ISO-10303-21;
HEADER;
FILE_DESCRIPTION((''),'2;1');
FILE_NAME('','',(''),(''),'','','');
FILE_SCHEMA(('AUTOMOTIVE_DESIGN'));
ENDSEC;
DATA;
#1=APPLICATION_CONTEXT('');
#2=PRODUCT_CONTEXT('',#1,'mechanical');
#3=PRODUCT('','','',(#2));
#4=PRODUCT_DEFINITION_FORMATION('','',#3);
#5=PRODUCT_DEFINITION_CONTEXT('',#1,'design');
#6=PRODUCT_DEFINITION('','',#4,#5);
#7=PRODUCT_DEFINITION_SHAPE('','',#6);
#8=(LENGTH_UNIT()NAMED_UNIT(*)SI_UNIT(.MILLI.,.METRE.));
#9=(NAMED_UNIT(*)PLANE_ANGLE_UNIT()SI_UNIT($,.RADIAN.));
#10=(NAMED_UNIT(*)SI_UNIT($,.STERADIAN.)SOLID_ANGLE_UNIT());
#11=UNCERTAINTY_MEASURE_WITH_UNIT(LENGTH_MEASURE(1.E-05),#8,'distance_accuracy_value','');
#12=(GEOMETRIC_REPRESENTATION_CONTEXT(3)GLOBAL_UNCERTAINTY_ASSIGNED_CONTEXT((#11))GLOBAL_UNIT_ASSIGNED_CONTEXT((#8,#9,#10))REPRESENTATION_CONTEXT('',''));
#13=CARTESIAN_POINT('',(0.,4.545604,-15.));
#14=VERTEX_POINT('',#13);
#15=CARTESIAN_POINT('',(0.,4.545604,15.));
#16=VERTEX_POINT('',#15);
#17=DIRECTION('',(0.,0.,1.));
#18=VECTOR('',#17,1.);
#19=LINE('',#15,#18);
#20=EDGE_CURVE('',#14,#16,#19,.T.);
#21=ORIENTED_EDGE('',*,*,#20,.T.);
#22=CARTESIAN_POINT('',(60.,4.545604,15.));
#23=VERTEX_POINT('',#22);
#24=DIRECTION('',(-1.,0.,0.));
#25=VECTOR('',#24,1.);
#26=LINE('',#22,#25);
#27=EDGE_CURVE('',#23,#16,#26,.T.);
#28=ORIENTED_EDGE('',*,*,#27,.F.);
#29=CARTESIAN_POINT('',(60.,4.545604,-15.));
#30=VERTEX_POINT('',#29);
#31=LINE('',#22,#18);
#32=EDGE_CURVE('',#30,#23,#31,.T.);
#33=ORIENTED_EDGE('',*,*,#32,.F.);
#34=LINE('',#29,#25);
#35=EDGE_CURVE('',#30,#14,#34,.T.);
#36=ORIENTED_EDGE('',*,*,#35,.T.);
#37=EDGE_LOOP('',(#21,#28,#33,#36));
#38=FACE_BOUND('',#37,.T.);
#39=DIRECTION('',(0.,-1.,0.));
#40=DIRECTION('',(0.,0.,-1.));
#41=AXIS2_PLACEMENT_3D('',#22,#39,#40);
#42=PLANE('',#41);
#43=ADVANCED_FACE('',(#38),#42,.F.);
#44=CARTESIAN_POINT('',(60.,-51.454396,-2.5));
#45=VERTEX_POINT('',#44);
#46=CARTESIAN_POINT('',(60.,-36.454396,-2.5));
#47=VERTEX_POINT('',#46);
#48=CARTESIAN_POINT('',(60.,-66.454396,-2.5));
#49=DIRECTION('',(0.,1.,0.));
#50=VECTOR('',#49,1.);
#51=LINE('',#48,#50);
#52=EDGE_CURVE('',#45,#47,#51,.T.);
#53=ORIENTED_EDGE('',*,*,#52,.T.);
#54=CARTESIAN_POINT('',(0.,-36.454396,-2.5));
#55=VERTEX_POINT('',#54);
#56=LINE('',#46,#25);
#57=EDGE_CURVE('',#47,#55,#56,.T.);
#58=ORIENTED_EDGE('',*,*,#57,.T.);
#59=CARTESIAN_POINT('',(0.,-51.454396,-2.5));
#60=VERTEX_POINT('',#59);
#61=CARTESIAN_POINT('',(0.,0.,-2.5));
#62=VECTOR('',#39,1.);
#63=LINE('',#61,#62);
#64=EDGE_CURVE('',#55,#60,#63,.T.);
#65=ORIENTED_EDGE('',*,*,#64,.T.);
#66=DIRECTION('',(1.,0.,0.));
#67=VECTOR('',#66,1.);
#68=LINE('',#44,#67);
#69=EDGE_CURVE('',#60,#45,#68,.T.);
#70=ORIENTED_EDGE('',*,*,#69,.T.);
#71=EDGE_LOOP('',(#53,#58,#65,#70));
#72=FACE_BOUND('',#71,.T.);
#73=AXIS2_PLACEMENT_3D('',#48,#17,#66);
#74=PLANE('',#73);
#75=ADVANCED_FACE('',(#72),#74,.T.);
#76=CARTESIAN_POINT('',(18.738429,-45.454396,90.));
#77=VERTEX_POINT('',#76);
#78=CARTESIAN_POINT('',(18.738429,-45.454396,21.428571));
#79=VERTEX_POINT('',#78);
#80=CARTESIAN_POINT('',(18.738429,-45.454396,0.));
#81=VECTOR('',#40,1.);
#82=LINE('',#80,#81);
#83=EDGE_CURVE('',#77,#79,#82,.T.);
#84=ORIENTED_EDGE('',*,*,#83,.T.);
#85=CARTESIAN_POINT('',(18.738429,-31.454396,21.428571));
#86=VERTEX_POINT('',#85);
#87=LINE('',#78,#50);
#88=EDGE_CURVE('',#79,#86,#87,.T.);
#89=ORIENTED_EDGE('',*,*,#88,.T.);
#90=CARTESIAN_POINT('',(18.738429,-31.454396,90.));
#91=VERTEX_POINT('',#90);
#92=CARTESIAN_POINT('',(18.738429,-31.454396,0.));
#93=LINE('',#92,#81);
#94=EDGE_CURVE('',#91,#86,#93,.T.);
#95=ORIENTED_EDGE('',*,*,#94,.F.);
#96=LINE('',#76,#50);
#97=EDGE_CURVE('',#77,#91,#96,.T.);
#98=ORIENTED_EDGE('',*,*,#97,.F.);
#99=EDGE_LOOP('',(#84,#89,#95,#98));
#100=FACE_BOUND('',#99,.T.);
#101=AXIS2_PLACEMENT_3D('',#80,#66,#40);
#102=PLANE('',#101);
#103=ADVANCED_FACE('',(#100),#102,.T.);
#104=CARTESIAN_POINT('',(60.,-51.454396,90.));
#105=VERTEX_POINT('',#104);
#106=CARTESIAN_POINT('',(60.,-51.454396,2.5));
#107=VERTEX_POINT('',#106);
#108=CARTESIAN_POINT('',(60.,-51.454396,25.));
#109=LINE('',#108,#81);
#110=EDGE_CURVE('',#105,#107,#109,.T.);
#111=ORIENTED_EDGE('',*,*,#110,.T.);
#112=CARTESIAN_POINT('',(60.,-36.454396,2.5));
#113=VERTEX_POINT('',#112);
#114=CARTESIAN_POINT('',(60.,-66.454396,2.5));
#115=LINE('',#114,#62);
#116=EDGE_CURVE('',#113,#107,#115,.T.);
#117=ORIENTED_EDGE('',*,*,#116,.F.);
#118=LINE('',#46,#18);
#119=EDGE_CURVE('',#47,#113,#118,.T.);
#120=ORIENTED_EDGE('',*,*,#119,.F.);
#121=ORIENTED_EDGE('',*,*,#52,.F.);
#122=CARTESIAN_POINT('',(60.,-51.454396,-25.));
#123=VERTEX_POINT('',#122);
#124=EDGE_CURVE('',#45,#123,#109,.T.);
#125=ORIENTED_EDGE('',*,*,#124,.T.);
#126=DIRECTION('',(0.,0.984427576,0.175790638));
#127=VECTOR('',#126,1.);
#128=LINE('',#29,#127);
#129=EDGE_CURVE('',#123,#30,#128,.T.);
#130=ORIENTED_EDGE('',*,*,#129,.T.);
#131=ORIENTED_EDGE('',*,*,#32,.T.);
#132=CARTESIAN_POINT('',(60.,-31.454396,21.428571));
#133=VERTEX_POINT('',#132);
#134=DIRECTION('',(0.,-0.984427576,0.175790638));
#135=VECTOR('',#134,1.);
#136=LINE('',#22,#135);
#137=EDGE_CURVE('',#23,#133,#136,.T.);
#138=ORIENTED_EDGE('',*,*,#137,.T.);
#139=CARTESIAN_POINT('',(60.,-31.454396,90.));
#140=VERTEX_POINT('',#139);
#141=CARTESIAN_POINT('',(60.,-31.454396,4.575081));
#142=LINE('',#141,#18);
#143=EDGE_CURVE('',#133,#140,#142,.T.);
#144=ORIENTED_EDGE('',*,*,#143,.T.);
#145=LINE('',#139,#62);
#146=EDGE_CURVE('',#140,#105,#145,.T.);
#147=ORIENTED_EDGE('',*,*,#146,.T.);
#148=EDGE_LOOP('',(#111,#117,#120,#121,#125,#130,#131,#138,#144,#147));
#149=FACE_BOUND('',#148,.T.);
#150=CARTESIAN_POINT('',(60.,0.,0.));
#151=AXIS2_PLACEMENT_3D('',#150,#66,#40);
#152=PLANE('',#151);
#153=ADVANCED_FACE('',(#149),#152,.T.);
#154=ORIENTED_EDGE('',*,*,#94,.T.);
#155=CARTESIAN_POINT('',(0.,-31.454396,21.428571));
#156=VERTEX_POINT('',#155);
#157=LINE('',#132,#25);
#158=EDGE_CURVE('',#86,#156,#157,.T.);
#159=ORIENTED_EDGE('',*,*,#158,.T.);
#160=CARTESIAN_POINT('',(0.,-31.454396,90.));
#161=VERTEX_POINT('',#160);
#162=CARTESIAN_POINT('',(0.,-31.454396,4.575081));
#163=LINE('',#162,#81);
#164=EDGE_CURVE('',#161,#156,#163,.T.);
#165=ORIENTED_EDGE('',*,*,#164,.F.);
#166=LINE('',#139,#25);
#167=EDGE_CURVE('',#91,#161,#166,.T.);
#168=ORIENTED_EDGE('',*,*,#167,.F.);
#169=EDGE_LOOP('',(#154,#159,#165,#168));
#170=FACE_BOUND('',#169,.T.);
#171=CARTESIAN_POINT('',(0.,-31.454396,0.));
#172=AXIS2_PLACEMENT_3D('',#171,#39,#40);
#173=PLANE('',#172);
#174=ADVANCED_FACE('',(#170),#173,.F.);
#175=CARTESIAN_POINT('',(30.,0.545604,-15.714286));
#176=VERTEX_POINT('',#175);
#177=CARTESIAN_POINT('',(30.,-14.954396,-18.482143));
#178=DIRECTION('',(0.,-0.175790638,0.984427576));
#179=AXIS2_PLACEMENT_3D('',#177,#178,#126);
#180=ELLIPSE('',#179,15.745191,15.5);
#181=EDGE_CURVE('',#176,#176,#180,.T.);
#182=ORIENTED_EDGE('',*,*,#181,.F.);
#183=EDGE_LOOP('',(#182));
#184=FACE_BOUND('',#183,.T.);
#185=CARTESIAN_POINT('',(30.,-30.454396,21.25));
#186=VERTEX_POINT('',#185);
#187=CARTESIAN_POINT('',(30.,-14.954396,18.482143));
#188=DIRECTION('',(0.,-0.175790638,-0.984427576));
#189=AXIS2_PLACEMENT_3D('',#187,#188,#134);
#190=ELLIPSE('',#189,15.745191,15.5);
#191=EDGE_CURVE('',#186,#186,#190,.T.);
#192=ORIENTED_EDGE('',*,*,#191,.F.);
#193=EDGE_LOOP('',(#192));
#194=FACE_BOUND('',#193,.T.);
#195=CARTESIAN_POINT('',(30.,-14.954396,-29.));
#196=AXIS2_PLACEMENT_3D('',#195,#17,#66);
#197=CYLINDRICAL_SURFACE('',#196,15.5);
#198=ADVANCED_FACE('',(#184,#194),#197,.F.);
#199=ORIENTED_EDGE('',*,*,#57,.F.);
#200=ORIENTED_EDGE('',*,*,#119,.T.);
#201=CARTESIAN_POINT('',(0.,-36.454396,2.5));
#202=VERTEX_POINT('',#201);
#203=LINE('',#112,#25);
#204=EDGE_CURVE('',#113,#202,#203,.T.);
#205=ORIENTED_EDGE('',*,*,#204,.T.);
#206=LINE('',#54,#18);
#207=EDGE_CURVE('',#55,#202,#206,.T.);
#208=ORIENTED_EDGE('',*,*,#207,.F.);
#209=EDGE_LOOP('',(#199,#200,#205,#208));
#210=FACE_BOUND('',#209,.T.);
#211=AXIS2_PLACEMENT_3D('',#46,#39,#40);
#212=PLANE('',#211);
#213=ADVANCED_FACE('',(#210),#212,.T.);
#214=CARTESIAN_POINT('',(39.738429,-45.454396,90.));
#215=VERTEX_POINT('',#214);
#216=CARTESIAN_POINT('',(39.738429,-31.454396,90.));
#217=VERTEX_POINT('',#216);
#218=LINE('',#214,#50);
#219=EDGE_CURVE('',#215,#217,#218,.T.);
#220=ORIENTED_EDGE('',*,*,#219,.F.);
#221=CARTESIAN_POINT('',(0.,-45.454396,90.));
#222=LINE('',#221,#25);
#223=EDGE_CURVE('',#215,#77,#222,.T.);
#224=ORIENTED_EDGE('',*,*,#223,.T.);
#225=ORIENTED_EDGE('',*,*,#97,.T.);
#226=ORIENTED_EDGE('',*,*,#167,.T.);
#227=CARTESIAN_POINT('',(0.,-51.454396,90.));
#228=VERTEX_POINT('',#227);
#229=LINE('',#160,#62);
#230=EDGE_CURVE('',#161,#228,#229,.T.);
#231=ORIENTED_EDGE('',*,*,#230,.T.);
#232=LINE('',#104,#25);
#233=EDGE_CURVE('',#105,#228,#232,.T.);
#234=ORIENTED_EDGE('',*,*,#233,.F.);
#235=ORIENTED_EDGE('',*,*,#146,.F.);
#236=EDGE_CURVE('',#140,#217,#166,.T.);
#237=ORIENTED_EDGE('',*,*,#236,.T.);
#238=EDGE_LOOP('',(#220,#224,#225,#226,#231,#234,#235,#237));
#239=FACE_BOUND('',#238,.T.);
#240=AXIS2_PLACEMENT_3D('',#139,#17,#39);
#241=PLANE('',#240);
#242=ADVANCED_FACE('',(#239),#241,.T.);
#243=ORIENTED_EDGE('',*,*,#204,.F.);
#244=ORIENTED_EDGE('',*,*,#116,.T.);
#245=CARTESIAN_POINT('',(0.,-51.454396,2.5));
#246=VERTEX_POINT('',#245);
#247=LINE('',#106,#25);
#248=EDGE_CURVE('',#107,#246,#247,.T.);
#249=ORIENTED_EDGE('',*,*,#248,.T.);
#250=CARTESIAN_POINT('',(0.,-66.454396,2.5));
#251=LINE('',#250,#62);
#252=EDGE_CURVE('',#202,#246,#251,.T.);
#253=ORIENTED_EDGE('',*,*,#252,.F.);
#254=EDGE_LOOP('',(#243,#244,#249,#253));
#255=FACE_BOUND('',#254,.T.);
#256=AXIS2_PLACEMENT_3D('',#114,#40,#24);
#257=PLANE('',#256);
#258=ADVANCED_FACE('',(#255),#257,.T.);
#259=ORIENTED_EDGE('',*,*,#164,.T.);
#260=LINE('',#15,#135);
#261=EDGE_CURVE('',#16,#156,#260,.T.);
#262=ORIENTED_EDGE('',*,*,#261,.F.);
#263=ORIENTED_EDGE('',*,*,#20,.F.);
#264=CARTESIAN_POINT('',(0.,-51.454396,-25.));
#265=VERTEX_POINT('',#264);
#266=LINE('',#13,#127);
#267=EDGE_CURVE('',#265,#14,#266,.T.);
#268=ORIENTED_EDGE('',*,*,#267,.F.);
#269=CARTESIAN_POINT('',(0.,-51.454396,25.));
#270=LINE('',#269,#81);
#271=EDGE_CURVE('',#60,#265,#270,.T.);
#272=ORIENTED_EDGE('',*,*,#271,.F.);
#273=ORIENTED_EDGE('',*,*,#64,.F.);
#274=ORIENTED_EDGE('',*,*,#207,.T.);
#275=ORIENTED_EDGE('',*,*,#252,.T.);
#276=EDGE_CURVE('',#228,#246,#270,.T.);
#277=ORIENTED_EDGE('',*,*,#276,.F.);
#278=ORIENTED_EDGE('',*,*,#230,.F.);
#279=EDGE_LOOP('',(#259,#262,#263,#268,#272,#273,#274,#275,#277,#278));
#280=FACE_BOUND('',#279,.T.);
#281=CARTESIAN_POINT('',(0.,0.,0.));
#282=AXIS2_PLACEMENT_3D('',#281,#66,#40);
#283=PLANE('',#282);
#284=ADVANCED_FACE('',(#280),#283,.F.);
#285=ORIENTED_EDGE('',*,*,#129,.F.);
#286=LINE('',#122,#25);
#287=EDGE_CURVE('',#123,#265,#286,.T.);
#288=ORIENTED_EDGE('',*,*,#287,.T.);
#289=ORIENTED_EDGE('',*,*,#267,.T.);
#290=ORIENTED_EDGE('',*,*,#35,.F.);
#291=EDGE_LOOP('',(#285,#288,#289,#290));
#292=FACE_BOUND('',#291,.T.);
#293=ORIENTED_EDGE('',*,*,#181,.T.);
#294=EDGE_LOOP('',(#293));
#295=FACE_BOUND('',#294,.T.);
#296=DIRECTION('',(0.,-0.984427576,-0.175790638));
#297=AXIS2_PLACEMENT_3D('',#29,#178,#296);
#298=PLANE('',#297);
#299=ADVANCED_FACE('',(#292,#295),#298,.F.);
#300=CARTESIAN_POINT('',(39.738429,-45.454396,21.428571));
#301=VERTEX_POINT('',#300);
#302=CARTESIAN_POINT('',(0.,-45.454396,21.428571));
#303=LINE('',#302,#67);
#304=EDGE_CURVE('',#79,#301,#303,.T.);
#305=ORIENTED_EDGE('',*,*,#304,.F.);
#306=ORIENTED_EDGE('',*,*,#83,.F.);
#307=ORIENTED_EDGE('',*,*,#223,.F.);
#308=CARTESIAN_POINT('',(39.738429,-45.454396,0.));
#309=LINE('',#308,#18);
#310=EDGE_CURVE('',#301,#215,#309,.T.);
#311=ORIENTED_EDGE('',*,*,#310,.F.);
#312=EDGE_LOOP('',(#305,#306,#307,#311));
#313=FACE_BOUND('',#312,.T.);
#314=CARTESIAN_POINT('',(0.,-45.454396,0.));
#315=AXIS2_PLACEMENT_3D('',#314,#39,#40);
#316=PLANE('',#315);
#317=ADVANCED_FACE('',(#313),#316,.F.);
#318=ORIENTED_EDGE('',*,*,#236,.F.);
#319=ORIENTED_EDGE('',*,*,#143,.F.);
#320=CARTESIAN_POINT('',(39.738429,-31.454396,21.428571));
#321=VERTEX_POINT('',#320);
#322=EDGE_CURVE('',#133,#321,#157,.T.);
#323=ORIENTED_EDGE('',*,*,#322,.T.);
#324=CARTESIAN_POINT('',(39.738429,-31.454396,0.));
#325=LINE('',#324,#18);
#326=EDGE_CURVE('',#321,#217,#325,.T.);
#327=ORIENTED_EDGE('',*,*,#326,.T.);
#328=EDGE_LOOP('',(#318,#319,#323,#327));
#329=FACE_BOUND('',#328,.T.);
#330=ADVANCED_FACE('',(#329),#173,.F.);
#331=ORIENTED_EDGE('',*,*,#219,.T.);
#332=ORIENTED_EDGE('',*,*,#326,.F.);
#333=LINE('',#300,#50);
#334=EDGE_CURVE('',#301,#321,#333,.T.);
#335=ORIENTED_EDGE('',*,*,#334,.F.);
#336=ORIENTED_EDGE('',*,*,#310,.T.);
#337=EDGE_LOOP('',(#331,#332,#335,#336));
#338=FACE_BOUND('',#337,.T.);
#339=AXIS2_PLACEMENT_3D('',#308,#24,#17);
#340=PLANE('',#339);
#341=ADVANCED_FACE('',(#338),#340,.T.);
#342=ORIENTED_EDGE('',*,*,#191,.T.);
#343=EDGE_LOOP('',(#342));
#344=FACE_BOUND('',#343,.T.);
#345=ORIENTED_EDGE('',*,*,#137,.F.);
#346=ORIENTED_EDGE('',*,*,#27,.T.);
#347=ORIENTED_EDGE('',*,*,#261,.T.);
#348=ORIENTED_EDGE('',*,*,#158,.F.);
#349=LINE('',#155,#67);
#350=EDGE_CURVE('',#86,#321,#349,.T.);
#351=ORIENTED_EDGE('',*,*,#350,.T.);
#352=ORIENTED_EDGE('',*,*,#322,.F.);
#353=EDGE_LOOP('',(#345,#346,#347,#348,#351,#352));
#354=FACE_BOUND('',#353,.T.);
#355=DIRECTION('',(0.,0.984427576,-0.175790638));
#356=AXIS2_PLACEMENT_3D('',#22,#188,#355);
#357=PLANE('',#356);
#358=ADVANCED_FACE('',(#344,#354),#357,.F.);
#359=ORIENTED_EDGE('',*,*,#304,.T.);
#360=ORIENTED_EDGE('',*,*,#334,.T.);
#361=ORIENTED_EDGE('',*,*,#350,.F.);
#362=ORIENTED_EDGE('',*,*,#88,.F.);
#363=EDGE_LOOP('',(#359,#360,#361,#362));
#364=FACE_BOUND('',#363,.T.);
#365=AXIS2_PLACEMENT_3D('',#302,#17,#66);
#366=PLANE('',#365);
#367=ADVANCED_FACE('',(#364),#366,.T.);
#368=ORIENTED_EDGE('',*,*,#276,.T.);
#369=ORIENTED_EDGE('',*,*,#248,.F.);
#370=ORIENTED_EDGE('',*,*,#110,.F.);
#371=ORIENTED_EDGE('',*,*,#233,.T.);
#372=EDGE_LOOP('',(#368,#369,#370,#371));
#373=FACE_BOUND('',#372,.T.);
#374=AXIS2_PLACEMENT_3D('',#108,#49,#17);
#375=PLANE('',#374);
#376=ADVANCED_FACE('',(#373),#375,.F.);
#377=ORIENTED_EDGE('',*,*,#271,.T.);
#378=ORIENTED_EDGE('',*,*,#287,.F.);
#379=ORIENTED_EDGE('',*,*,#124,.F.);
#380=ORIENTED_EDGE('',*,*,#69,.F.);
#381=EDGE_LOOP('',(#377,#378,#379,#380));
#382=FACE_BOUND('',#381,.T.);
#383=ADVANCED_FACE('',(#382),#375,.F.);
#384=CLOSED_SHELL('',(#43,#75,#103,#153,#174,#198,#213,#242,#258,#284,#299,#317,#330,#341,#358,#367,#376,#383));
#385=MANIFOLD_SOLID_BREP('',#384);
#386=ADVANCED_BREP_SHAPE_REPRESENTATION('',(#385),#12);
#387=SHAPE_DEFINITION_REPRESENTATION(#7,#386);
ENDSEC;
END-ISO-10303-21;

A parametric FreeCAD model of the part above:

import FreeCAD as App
import Part
import Sketcher
from FreeCAD import Vector
Q = App.Units.Quantity

doc = App.newDocument("Part")
body = doc.addObject("PartDesign::Body", "Body")

# Sketch on YZ plane
sketch1 = doc.addObject("Sketcher::SketchObject", "Sketch")
body.addObject(sketch1)
sketch1.AttachmentSupport = (doc.YZ_Plane, [""])
sketch1.MapMode = "FlatFace"
sketch1.addGeometry(Part.LineSegment(Vector(-51.454396, 25, 0), Vector(-51.454396, -25, 0)), False)
sketch1.addGeometry(Part.LineSegment(Vector(-51.454396, -25, 0), Vector(4.545604, -15, 0)), False)
sketch1.addGeometry(Part.LineSegment(Vector(4.545604, -15, 0), Vector(4.545604, 15, 0)), False)
sketch1.addGeometry(Part.LineSegment(Vector(4.545604, 15, 0), Vector(-51.454396, 25, 0)), False)
sketch1.addConstraint(Sketcher.Constraint("Coincident", 0, 2, 1, 1))
sketch1.addConstraint(Sketcher.Constraint("Coincident", 1, 2, 2, 1))
sketch1.addConstraint(Sketcher.Constraint("Coincident", 2, 2, 3, 1))
sketch1.addConstraint(Sketcher.Constraint("Coincident", 3, 2, 0, 1))
sketch1.addConstraint(Sketcher.Constraint("Vertical", 0))
sketch1.addConstraint(Sketcher.Constraint("Vertical", 2))
sketch1.addConstraint(Sketcher.Constraint("Equal", 1, 3))
sketch1.addConstraint(Sketcher.Constraint("DistanceY", 0, 2, 0, 1, Q("50 mm")))
sketch1.addConstraint(Sketcher.Constraint("DistanceY", 2, 1, 2, 2, Q("30 mm")))
sketch1.addConstraint(Sketcher.Constraint("DistanceY", 0, 2, -1, 1, Q("25 mm")))
sketch1.addConstraint(Sketcher.Constraint("DistanceX", 0, 2, 1, 2, Q("56 mm")))
sketch1.addConstraint(Sketcher.Constraint("DistanceX", 0, 2, -1, 1, Q("51.454396 mm")))
pad1 = doc.addObject("PartDesign::Pad", "Pad")
body.addObject(pad1)
pad1.Profile = sketch1
pad1.Length = 60

# Sketch on XY plane
sketch2 = doc.addObject("Sketcher::SketchObject", "Sketch001")
body.addObject(sketch2)
sketch2.AttachmentSupport = (doc.XY_Plane, [""])
sketch2.MapMode = "FlatFace"
sketch2.addGeometry(Part.Circle(Vector(30, -14.954396, 0), Vector(0, 0, 1), 15.5), False)
sketch2.addConstraint(Sketcher.Constraint("Diameter", 0, Q("31 mm")))
sketch2.addConstraint(Sketcher.Constraint("DistanceX", -1, 1, 0, 3, Q("30 mm")))
sketch2.addConstraint(Sketcher.Constraint("DistanceY", 0, 3, -1, 1, Q("14.954396 mm")))
pocket1 = doc.addObject("PartDesign::Pocket", "Pocket")
body.addObject(pocket1)
pocket1.Profile = sketch2
pocket1.Type = "ThroughAll"
pocket1.Midplane = True

# Sketch on YZ plane
sketch3 = doc.addObject("Sketcher::SketchObject", "Sketch002")
body.addObject(sketch3)
sketch3.AttachmentSupport = (doc.YZ_Plane, [""])
sketch3.MapMode = "FlatFace"
sketch3.addGeometry(Part.LineSegment(Vector(-36.454396, 2.5, 0), Vector(-66.454396, 2.5, 0)), False)
sketch3.addGeometry(Part.LineSegment(Vector(-66.454396, 2.5, 0), Vector(-66.454396, -2.5, 0)), False)
sketch3.addGeometry(Part.LineSegment(Vector(-66.454396, -2.5, 0), Vector(-36.454396, -2.5, 0)), False)
sketch3.addGeometry(Part.LineSegment(Vector(-36.454396, -2.5, 0), Vector(-36.454396, 2.5, 0)), False)
sketch3.addConstraint(Sketcher.Constraint("Coincident", 0, 2, 1, 1))
sketch3.addConstraint(Sketcher.Constraint("Coincident", 1, 2, 2, 1))
sketch3.addConstraint(Sketcher.Constraint("Coincident", 2, 2, 3, 1))
sketch3.addConstraint(Sketcher.Constraint("Coincident", 3, 2, 0, 1))
sketch3.addConstraint(Sketcher.Constraint("Horizontal", 0))
sketch3.addConstraint(Sketcher.Constraint("Vertical", 1))
sketch3.addConstraint(Sketcher.Constraint("Horizontal", 2))
sketch3.addConstraint(Sketcher.Constraint("Vertical", 3))
sketch3.addConstraint(Sketcher.Constraint("DistanceX", 0, 2, 0, 1, Q("30 mm")))
sketch3.addConstraint(Sketcher.Constraint("DistanceY", 1, 2, 1, 1, Q("5 mm")))
sketch3.addConstraint(Sketcher.Constraint("DistanceY", -1, 1, 0, 2, Q("2.5 mm")))
sketch3.addConstraint(Sketcher.Constraint("DistanceX", 0, 2, -1, 1, Q("66.454396 mm")))
pocket2 = doc.addObject("PartDesign::Pocket", "Pocket001")
body.addObject(pocket2)
pocket2.Profile = sketch3
pocket2.Type = "ThroughAll"
pocket2.Reversed = True

# Sketch on XZ plane
sketch4 = doc.addObject("Sketcher::SketchObject", "Sketch003")
body.addObject(sketch4)
sketch4.AttachmentSupport = (doc.XZ_Plane, [""])
sketch4.MapMode = "FlatFace"
sketch4.AttachmentOffset = App.Placement(Vector(0, 0, 51.454396), App.Rotation())
sketch4.addGeometry(Part.LineSegment(Vector(60, 4.575081, 0), Vector(60, 90, 0)), False)
sketch4.addGeometry(Part.LineSegment(Vector(60, 90, 0), Vector(0, 90, 0)), False)
sketch4.addGeometry(Part.LineSegment(Vector(0, 90, 0), Vector(0, 4.575081, 0)), False)
sketch4.addGeometry(Part.LineSegment(Vector(0, 4.575081, 0), Vector(60, 4.575081, 0)), False)
sketch4.addConstraint(Sketcher.Constraint("Coincident", 0, 2, 1, 1))
sketch4.addConstraint(Sketcher.Constraint("Coincident", 1, 2, 2, 1))
sketch4.addConstraint(Sketcher.Constraint("Coincident", 2, 2, 3, 1))
sketch4.addConstraint(Sketcher.Constraint("Coincident", 3, 2, 0, 1))
sketch4.addConstraint(Sketcher.Constraint("Vertical", 0))
sketch4.addConstraint(Sketcher.Constraint("Horizontal", 1))
sketch4.addConstraint(Sketcher.Constraint("Vertical", 2))
sketch4.addConstraint(Sketcher.Constraint("Horizontal", 3))
sketch4.addConstraint(Sketcher.Constraint("PointOnObject", 1, 2, -2))
sketch4.addConstraint(Sketcher.Constraint("DistanceX", 1, 2, 1, 1, Q("60 mm")))
sketch4.addConstraint(Sketcher.Constraint("DistanceY", -1, 1, 0, 2, Q("90 mm")))
sketch4.addConstraint(Sketcher.Constraint("DistanceY", 0, 1, 0, 2, Q("85.424919 mm")))
pad2 = doc.addObject("PartDesign::Pad", "Pad001")
body.addObject(pad2)
pad2.Profile = sketch4
pad2.Length = 20
pad2.Reversed = True

# Sketch on XZ plane
sketch5 = doc.addObject("Sketcher::SketchObject", "Sketch004")
body.addObject(sketch5)
sketch5.AttachmentSupport = (doc.XZ_Plane, [""])
sketch5.MapMode = "FlatFace"
sketch5.AttachmentOffset = App.Placement(Vector(0, 0, 31.454396), App.Rotation())
sketch5.addGeometry(Part.LineSegment(Vector(18.738429, 21.428571, 0), Vector(18.738429, 90, 0)), False)
sketch5.addGeometry(Part.LineSegment(Vector(18.738429, 90, 0), Vector(39.738429, 90, 0)), False)
sketch5.addGeometry(Part.LineSegment(Vector(39.738429, 90, 0), Vector(39.738429, 21.428571, 0)), False)
sketch5.addGeometry(Part.LineSegment(Vector(39.738429, 21.428571, 0), Vector(18.738429, 21.428571, 0)), False)
sketch5.addConstraint(Sketcher.Constraint("Coincident", 0, 2, 1, 1))
sketch5.addConstraint(Sketcher.Constraint("Coincident", 1, 2, 2, 1))
sketch5.addConstraint(Sketcher.Constraint("Coincident", 2, 2, 3, 1))
sketch5.addConstraint(Sketcher.Constraint("Coincident", 3, 2, 0, 1))
sketch5.addConstraint(Sketcher.Constraint("Vertical", 0))
sketch5.addConstraint(Sketcher.Constraint("Horizontal", 1))
sketch5.addConstraint(Sketcher.Constraint("Vertical", 2))
sketch5.addConstraint(Sketcher.Constraint("Horizontal", 3))
sketch5.addConstraint(Sketcher.Constraint("DistanceX", 1, 1, 1, 2, Q("21 mm")))
sketch5.addConstraint(Sketcher.Constraint("DistanceY", -1, 1, 0, 2, Q("90 mm")))
sketch5.addConstraint(Sketcher.Constraint("DistanceY", 0, 1, 0, 2, Q("68.571429 mm")))
sketch5.addConstraint(Sketcher.Constraint("DistanceX", -1, 1, 0, 2, Q("18.738429 mm")))
pocket3 = doc.addObject("PartDesign::Pocket", "Pocket002")
body.addObject(pocket3)
pocket3.Profile = sketch5
pocket3.Length = 14
pocket3.Reversed = True

doc.recompute()
